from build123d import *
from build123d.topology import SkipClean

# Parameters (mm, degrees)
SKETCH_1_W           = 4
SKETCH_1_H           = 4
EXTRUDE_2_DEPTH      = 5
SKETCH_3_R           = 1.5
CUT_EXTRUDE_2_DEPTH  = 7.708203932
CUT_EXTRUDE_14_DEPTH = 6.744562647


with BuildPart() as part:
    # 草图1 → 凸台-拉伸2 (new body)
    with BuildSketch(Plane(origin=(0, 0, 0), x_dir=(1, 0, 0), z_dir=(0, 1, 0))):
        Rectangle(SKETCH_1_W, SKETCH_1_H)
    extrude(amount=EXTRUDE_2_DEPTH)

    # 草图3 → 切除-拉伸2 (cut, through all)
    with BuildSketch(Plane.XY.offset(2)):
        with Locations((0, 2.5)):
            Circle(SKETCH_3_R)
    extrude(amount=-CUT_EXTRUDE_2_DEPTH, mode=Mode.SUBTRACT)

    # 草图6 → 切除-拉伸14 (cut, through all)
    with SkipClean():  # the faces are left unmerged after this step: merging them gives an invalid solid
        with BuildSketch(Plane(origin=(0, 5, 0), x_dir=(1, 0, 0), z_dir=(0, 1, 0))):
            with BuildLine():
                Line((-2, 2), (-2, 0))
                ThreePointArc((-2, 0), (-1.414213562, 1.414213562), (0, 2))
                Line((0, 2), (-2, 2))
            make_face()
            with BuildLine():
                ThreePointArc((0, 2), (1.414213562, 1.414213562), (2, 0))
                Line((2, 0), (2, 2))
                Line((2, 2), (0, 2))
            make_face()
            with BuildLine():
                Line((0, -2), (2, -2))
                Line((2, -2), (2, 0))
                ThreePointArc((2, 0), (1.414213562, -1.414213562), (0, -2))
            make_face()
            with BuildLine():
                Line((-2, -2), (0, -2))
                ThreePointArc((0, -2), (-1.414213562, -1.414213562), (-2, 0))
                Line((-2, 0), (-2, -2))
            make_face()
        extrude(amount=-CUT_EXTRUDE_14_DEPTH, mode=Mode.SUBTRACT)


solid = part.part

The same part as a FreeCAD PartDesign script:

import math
import FreeCAD as App
import Part
import Sketcher

V = App.Vector


def add_polygon(sketch, points):
    """Adds a closed chain of lines whose ends are joined by coincident constraints."""
    first, n = sketch.GeometryCount, len(points)
    for a, b in zip(points, points[1:] + points[:1]):
        sketch.addGeometry(Part.LineSegment(App.Vector(*a, 0), App.Vector(*b, 0)), False)
    for i in range(n):
        sketch.addConstraint(Sketcher.Constraint("Coincident", first + i, 2, first + (i + 1) % n, 1))

doc = App.newDocument("Part")
body = doc.addObject("PartDesign::Body", "Body")

sketch1 = body.newObject("Sketcher::SketchObject", "Sketch")
sketch1.AttachmentSupport = (doc.getObject("XZ_Plane"), [""])
sketch1.MapMode = "FlatFace"
add_polygon(sketch1, [(-2, -2), (-2, 2), (2, 2), (2, -2)])
sketch1.addConstraint(Sketcher.Constraint("Vertical", 0))
sketch1.addConstraint(Sketcher.Constraint("Horizontal", 1))
sketch1.addConstraint(Sketcher.Constraint("Vertical", 2))
sketch1.addConstraint(Sketcher.Constraint("Horizontal", 3))
sketch1.addConstraint(Sketcher.Constraint("Symmetric", 0, 2, 2, 2, -1, 1))
sketch1.addConstraint(Sketcher.Constraint("Equal", 3, 0))
sketch1.addConstraint(Sketcher.Constraint("DistanceX", 1, 1, 1, 2, 4.0))
pad1 = body.newObject("PartDesign::Pad", "Pad")
pad1.Profile = sketch1
pad1.Length = 5
pad1.Reversed = True

sketch2 = body.newObject("Sketcher::SketchObject", "Sketch001")
sketch2.AttachmentSupport = (doc.getObject("XY_Plane"), [""])
sketch2.MapMode = "FlatFace"
sketch2.AttachmentOffset = App.Placement(V(0, 0, 2), App.Rotation())
sketch2.addGeometry(Part.Circle(V(0, 2.5, 0), V(0, 0, 1), 1.5), False)
sketch2.addConstraint(Sketcher.Constraint("PointOnObject", 0, 3, -2))
sketch2.addConstraint(Sketcher.Constraint("Diameter", 0, 3.0))
sketch2.addConstraint(Sketcher.Constraint("DistanceY", -1, 1, 0, 3, 2.5))
pocket1 = body.newObject("PartDesign::Pocket", "Pocket")
pocket1.Profile = sketch2
pocket1.Type = "ThroughAll"

sketch3 = body.newObject("Sketcher::SketchObject", "Sketch002")
sketch3.AttachmentSupport = (doc.getObject("XZ_Plane"), [""])
sketch3.MapMode = "FlatFace"
sketch3.AttachmentOffset = App.Placement(V(0, 0, -5), App.Rotation())
sketch3.addGeometry(Part.LineSegment(V(-2, -2, 0), V(-2, 0, 0)), False)
sketch3.addGeometry(Part.ArcOfCircle(Part.Circle(V(0, 0, 0), V(0, 0, 1), 2), math.radians(-180), math.radians(-90)), False)
sketch3.addGeometry(Part.LineSegment(V(0, -2, 0), V(-2, -2, 0)), False)
sketch3.addGeometry(Part.ArcOfCircle(Part.Circle(V(0, 0, 0), V(0, 0, 1), 2), math.radians(-90), math.radians(0)), False)
sketch3.addGeometry(Part.LineSegment(V(2, 0, 0), V(2, -2, 0)), False)
sketch3.addGeometry(Part.LineSegment(V(2, -2, 0), V(0, -2, 0)), False)
sketch3.addGeometry(Part.LineSegment(V(0, 2, 0), V(2, 2, 0)), False)
sketch3.addGeometry(Part.LineSegment(V(2, 2, 0), V(2, 0, 0)), False)
sketch3.addGeometry(Part.ArcOfCircle(Part.Circle(V(0, 0, 0), V(0, 0, 1), 2), math.radians(0), math.radians(90)), False)
sketch3.addGeometry(Part.LineSegment(V(-2, 2, 0), V(0, 2, 0)), False)
sketch3.addGeometry(Part.ArcOfCircle(Part.Circle(V(0, 0, 0), V(0, 0, 1), 2), math.radians(90), math.radians(180)), False)
sketch3.addGeometry(Part.LineSegment(V(-2, 0, 0), V(-2, 2, 0)), False)
sketch3.addConstraint(Sketcher.Constraint("Tangent", 0, 2, 1, 1))
sketch3.addConstraint(Sketcher.Constraint("Tangent", 1, 2, 2, 1))
sketch3.addConstraint(Sketcher.Constraint("Coincident", 2, 2, 0, 1))
sketch3.addConstraint(Sketcher.Constraint("Tangent", 3, 2, 4, 1))
sketch3.addConstraint(Sketcher.Constraint("Coincident", 4, 2, 5, 1))
sketch3.addConstraint(Sketcher.Constraint("Tangent", 5, 2, 3, 1))
sketch3.addConstraint(Sketcher.Constraint("Coincident", 6, 2, 7, 1))
sketch3.addConstraint(Sketcher.Constraint("Tangent", 7, 2, 8, 1))
sketch3.addConstraint(Sketcher.Constraint("Tangent", 8, 2, 6, 1))
sketch3.addConstraint(Sketcher.Constraint("Tangent", 9, 2, 10, 1))
sketch3.addConstraint(Sketcher.Constraint("Tangent", 10, 2, 11, 1))
sketch3.addConstraint(Sketcher.Constraint("Coincident", 11, 2, 9, 1))
sketch3.addConstraint(Sketcher.Constraint("Vertical", 0))
sketch3.addConstraint(Sketcher.Constraint("Horizontal", 2))
sketch3.addConstraint(Sketcher.Constraint("Vertical", 4))
sketch3.addConstraint(Sketcher.Constraint("Horizontal", 5))
sketch3.addConstraint(Sketcher.Constraint("Horizontal", 6))
sketch3.addConstraint(Sketcher.Constraint("Vertical", 7))
sketch3.addConstraint(Sketcher.Constraint("Horizontal", 9))
sketch3.addConstraint(Sketcher.Constraint("Vertical", 11))
sketch3.addConstraint(Sketcher.Constraint("Coincident", 1, 3, -1, 1))
sketch3.addConstraint(Sketcher.Constraint("Coincident", 3, 3, -1, 1))
sketch3.addConstraint(Sketcher.Constraint("Coincident", 8, 3, -1, 1))
sketch3.addConstraint(Sketcher.Constraint("Coincident", 10, 3, -1, 1))
sketch3.addConstraint(Sketcher.Constraint("Equal", 1, 3))
sketch3.addConstraint(Sketcher.Constraint("Equal", 3, 8))
sketch3.addConstraint(Sketcher.Constraint("Equal", 8, 10))
sketch3.addConstraint(Sketcher.Constraint("Radius", 1, 2.0))
pocket2 = body.newObject("PartDesign::Pocket", "Pocket001")
pocket2.Profile = sketch3
pocket2.Type = "ThroughAll"
pocket2.Reversed = True

doc.recompute()
